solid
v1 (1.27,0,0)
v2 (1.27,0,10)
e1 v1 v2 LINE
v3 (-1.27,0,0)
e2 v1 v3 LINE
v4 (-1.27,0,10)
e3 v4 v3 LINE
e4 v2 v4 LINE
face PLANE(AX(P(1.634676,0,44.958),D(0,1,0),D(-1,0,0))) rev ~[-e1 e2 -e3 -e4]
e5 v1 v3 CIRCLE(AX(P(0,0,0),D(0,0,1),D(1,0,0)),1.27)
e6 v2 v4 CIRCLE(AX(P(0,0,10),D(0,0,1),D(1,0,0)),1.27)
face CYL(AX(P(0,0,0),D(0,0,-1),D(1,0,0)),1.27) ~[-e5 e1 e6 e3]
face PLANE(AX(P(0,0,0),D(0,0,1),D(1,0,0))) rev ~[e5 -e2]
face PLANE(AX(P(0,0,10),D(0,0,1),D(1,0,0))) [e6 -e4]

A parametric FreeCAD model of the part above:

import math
import FreeCAD as App
import Part
import Sketcher

V = App.Vector
Q = App.Units.Quantity

doc = App.newDocument("Part")
body = doc.addObject("PartDesign::Body", "Body")

# Sketch on XY plane
sketch1 = body.newObject("Sketcher::SketchObject", "Sketch")
sketch1.AttachmentSupport = (doc.getObject("XY_Plane"), [""])
sketch1.MapMode = "FlatFace"
sketch1.addGeometry(Part.Circle(V(0, 0, 0), V(0, 0, 1), 1.3), False)
sketch1.addConstraint([
    Sketcher.Constraint("Coincident", 0, 3, -1, 1),
    Sketcher.Constraint("Diameter", 0, Q("0.1 in")),
])
pad1 = body.newObject("PartDesign::Pad", "Pad")
pad1.Profile = sketch1
pad1.Length = 10

# Sketch on XY plane
sketch2 = body.newObject("Sketcher::SketchObject", "Sketch001")
sketch2.AttachmentSupport = (doc.getObject("XY_Plane"), [""])
sketch2.MapMode = "FlatFace"
sketch2.AttachmentOffset = App.Placement(V(0, 0, 1.77 * 25.4), App.Rotation())
sketch2.addGeometry([
    Part.LineSegment(V(1.6, 0, 0), V(-1.6, 0, 0)),
    Part.ArcOfCircle(Part.Circle(V(0, -0.5, 0), V(0, 0, 1), 1.7), math.radians(164), math.radians(376)),
], False)
sketch2.addConstraint([
    Sketcher.Constraint("Coincident", 0, 1, 1, 2),
    Sketcher.Constraint("Coincident", 1, 1, 0, 2),
    Sketcher.Constraint("Horizontal", 0),
    Sketcher.Constraint("PointOnObject", 0, 1, -1),
    Sketcher.Constraint("Radius", 1, Q("1.659762 mm")),
    Sketcher.Constraint("DistanceX", -1, 1, 1, 3, Q("0.040399 mm")),
    Sketcher.Constraint("DistanceX", 0, 2, 0, 1, Q("3.188554 mm")),
])
pocket1 = body.newObject("PartDesign::Pocket", "Pocket")
pocket1.Profile = sketch2
pocket1.Length = Q("3.86 in")

doc.recompute()
